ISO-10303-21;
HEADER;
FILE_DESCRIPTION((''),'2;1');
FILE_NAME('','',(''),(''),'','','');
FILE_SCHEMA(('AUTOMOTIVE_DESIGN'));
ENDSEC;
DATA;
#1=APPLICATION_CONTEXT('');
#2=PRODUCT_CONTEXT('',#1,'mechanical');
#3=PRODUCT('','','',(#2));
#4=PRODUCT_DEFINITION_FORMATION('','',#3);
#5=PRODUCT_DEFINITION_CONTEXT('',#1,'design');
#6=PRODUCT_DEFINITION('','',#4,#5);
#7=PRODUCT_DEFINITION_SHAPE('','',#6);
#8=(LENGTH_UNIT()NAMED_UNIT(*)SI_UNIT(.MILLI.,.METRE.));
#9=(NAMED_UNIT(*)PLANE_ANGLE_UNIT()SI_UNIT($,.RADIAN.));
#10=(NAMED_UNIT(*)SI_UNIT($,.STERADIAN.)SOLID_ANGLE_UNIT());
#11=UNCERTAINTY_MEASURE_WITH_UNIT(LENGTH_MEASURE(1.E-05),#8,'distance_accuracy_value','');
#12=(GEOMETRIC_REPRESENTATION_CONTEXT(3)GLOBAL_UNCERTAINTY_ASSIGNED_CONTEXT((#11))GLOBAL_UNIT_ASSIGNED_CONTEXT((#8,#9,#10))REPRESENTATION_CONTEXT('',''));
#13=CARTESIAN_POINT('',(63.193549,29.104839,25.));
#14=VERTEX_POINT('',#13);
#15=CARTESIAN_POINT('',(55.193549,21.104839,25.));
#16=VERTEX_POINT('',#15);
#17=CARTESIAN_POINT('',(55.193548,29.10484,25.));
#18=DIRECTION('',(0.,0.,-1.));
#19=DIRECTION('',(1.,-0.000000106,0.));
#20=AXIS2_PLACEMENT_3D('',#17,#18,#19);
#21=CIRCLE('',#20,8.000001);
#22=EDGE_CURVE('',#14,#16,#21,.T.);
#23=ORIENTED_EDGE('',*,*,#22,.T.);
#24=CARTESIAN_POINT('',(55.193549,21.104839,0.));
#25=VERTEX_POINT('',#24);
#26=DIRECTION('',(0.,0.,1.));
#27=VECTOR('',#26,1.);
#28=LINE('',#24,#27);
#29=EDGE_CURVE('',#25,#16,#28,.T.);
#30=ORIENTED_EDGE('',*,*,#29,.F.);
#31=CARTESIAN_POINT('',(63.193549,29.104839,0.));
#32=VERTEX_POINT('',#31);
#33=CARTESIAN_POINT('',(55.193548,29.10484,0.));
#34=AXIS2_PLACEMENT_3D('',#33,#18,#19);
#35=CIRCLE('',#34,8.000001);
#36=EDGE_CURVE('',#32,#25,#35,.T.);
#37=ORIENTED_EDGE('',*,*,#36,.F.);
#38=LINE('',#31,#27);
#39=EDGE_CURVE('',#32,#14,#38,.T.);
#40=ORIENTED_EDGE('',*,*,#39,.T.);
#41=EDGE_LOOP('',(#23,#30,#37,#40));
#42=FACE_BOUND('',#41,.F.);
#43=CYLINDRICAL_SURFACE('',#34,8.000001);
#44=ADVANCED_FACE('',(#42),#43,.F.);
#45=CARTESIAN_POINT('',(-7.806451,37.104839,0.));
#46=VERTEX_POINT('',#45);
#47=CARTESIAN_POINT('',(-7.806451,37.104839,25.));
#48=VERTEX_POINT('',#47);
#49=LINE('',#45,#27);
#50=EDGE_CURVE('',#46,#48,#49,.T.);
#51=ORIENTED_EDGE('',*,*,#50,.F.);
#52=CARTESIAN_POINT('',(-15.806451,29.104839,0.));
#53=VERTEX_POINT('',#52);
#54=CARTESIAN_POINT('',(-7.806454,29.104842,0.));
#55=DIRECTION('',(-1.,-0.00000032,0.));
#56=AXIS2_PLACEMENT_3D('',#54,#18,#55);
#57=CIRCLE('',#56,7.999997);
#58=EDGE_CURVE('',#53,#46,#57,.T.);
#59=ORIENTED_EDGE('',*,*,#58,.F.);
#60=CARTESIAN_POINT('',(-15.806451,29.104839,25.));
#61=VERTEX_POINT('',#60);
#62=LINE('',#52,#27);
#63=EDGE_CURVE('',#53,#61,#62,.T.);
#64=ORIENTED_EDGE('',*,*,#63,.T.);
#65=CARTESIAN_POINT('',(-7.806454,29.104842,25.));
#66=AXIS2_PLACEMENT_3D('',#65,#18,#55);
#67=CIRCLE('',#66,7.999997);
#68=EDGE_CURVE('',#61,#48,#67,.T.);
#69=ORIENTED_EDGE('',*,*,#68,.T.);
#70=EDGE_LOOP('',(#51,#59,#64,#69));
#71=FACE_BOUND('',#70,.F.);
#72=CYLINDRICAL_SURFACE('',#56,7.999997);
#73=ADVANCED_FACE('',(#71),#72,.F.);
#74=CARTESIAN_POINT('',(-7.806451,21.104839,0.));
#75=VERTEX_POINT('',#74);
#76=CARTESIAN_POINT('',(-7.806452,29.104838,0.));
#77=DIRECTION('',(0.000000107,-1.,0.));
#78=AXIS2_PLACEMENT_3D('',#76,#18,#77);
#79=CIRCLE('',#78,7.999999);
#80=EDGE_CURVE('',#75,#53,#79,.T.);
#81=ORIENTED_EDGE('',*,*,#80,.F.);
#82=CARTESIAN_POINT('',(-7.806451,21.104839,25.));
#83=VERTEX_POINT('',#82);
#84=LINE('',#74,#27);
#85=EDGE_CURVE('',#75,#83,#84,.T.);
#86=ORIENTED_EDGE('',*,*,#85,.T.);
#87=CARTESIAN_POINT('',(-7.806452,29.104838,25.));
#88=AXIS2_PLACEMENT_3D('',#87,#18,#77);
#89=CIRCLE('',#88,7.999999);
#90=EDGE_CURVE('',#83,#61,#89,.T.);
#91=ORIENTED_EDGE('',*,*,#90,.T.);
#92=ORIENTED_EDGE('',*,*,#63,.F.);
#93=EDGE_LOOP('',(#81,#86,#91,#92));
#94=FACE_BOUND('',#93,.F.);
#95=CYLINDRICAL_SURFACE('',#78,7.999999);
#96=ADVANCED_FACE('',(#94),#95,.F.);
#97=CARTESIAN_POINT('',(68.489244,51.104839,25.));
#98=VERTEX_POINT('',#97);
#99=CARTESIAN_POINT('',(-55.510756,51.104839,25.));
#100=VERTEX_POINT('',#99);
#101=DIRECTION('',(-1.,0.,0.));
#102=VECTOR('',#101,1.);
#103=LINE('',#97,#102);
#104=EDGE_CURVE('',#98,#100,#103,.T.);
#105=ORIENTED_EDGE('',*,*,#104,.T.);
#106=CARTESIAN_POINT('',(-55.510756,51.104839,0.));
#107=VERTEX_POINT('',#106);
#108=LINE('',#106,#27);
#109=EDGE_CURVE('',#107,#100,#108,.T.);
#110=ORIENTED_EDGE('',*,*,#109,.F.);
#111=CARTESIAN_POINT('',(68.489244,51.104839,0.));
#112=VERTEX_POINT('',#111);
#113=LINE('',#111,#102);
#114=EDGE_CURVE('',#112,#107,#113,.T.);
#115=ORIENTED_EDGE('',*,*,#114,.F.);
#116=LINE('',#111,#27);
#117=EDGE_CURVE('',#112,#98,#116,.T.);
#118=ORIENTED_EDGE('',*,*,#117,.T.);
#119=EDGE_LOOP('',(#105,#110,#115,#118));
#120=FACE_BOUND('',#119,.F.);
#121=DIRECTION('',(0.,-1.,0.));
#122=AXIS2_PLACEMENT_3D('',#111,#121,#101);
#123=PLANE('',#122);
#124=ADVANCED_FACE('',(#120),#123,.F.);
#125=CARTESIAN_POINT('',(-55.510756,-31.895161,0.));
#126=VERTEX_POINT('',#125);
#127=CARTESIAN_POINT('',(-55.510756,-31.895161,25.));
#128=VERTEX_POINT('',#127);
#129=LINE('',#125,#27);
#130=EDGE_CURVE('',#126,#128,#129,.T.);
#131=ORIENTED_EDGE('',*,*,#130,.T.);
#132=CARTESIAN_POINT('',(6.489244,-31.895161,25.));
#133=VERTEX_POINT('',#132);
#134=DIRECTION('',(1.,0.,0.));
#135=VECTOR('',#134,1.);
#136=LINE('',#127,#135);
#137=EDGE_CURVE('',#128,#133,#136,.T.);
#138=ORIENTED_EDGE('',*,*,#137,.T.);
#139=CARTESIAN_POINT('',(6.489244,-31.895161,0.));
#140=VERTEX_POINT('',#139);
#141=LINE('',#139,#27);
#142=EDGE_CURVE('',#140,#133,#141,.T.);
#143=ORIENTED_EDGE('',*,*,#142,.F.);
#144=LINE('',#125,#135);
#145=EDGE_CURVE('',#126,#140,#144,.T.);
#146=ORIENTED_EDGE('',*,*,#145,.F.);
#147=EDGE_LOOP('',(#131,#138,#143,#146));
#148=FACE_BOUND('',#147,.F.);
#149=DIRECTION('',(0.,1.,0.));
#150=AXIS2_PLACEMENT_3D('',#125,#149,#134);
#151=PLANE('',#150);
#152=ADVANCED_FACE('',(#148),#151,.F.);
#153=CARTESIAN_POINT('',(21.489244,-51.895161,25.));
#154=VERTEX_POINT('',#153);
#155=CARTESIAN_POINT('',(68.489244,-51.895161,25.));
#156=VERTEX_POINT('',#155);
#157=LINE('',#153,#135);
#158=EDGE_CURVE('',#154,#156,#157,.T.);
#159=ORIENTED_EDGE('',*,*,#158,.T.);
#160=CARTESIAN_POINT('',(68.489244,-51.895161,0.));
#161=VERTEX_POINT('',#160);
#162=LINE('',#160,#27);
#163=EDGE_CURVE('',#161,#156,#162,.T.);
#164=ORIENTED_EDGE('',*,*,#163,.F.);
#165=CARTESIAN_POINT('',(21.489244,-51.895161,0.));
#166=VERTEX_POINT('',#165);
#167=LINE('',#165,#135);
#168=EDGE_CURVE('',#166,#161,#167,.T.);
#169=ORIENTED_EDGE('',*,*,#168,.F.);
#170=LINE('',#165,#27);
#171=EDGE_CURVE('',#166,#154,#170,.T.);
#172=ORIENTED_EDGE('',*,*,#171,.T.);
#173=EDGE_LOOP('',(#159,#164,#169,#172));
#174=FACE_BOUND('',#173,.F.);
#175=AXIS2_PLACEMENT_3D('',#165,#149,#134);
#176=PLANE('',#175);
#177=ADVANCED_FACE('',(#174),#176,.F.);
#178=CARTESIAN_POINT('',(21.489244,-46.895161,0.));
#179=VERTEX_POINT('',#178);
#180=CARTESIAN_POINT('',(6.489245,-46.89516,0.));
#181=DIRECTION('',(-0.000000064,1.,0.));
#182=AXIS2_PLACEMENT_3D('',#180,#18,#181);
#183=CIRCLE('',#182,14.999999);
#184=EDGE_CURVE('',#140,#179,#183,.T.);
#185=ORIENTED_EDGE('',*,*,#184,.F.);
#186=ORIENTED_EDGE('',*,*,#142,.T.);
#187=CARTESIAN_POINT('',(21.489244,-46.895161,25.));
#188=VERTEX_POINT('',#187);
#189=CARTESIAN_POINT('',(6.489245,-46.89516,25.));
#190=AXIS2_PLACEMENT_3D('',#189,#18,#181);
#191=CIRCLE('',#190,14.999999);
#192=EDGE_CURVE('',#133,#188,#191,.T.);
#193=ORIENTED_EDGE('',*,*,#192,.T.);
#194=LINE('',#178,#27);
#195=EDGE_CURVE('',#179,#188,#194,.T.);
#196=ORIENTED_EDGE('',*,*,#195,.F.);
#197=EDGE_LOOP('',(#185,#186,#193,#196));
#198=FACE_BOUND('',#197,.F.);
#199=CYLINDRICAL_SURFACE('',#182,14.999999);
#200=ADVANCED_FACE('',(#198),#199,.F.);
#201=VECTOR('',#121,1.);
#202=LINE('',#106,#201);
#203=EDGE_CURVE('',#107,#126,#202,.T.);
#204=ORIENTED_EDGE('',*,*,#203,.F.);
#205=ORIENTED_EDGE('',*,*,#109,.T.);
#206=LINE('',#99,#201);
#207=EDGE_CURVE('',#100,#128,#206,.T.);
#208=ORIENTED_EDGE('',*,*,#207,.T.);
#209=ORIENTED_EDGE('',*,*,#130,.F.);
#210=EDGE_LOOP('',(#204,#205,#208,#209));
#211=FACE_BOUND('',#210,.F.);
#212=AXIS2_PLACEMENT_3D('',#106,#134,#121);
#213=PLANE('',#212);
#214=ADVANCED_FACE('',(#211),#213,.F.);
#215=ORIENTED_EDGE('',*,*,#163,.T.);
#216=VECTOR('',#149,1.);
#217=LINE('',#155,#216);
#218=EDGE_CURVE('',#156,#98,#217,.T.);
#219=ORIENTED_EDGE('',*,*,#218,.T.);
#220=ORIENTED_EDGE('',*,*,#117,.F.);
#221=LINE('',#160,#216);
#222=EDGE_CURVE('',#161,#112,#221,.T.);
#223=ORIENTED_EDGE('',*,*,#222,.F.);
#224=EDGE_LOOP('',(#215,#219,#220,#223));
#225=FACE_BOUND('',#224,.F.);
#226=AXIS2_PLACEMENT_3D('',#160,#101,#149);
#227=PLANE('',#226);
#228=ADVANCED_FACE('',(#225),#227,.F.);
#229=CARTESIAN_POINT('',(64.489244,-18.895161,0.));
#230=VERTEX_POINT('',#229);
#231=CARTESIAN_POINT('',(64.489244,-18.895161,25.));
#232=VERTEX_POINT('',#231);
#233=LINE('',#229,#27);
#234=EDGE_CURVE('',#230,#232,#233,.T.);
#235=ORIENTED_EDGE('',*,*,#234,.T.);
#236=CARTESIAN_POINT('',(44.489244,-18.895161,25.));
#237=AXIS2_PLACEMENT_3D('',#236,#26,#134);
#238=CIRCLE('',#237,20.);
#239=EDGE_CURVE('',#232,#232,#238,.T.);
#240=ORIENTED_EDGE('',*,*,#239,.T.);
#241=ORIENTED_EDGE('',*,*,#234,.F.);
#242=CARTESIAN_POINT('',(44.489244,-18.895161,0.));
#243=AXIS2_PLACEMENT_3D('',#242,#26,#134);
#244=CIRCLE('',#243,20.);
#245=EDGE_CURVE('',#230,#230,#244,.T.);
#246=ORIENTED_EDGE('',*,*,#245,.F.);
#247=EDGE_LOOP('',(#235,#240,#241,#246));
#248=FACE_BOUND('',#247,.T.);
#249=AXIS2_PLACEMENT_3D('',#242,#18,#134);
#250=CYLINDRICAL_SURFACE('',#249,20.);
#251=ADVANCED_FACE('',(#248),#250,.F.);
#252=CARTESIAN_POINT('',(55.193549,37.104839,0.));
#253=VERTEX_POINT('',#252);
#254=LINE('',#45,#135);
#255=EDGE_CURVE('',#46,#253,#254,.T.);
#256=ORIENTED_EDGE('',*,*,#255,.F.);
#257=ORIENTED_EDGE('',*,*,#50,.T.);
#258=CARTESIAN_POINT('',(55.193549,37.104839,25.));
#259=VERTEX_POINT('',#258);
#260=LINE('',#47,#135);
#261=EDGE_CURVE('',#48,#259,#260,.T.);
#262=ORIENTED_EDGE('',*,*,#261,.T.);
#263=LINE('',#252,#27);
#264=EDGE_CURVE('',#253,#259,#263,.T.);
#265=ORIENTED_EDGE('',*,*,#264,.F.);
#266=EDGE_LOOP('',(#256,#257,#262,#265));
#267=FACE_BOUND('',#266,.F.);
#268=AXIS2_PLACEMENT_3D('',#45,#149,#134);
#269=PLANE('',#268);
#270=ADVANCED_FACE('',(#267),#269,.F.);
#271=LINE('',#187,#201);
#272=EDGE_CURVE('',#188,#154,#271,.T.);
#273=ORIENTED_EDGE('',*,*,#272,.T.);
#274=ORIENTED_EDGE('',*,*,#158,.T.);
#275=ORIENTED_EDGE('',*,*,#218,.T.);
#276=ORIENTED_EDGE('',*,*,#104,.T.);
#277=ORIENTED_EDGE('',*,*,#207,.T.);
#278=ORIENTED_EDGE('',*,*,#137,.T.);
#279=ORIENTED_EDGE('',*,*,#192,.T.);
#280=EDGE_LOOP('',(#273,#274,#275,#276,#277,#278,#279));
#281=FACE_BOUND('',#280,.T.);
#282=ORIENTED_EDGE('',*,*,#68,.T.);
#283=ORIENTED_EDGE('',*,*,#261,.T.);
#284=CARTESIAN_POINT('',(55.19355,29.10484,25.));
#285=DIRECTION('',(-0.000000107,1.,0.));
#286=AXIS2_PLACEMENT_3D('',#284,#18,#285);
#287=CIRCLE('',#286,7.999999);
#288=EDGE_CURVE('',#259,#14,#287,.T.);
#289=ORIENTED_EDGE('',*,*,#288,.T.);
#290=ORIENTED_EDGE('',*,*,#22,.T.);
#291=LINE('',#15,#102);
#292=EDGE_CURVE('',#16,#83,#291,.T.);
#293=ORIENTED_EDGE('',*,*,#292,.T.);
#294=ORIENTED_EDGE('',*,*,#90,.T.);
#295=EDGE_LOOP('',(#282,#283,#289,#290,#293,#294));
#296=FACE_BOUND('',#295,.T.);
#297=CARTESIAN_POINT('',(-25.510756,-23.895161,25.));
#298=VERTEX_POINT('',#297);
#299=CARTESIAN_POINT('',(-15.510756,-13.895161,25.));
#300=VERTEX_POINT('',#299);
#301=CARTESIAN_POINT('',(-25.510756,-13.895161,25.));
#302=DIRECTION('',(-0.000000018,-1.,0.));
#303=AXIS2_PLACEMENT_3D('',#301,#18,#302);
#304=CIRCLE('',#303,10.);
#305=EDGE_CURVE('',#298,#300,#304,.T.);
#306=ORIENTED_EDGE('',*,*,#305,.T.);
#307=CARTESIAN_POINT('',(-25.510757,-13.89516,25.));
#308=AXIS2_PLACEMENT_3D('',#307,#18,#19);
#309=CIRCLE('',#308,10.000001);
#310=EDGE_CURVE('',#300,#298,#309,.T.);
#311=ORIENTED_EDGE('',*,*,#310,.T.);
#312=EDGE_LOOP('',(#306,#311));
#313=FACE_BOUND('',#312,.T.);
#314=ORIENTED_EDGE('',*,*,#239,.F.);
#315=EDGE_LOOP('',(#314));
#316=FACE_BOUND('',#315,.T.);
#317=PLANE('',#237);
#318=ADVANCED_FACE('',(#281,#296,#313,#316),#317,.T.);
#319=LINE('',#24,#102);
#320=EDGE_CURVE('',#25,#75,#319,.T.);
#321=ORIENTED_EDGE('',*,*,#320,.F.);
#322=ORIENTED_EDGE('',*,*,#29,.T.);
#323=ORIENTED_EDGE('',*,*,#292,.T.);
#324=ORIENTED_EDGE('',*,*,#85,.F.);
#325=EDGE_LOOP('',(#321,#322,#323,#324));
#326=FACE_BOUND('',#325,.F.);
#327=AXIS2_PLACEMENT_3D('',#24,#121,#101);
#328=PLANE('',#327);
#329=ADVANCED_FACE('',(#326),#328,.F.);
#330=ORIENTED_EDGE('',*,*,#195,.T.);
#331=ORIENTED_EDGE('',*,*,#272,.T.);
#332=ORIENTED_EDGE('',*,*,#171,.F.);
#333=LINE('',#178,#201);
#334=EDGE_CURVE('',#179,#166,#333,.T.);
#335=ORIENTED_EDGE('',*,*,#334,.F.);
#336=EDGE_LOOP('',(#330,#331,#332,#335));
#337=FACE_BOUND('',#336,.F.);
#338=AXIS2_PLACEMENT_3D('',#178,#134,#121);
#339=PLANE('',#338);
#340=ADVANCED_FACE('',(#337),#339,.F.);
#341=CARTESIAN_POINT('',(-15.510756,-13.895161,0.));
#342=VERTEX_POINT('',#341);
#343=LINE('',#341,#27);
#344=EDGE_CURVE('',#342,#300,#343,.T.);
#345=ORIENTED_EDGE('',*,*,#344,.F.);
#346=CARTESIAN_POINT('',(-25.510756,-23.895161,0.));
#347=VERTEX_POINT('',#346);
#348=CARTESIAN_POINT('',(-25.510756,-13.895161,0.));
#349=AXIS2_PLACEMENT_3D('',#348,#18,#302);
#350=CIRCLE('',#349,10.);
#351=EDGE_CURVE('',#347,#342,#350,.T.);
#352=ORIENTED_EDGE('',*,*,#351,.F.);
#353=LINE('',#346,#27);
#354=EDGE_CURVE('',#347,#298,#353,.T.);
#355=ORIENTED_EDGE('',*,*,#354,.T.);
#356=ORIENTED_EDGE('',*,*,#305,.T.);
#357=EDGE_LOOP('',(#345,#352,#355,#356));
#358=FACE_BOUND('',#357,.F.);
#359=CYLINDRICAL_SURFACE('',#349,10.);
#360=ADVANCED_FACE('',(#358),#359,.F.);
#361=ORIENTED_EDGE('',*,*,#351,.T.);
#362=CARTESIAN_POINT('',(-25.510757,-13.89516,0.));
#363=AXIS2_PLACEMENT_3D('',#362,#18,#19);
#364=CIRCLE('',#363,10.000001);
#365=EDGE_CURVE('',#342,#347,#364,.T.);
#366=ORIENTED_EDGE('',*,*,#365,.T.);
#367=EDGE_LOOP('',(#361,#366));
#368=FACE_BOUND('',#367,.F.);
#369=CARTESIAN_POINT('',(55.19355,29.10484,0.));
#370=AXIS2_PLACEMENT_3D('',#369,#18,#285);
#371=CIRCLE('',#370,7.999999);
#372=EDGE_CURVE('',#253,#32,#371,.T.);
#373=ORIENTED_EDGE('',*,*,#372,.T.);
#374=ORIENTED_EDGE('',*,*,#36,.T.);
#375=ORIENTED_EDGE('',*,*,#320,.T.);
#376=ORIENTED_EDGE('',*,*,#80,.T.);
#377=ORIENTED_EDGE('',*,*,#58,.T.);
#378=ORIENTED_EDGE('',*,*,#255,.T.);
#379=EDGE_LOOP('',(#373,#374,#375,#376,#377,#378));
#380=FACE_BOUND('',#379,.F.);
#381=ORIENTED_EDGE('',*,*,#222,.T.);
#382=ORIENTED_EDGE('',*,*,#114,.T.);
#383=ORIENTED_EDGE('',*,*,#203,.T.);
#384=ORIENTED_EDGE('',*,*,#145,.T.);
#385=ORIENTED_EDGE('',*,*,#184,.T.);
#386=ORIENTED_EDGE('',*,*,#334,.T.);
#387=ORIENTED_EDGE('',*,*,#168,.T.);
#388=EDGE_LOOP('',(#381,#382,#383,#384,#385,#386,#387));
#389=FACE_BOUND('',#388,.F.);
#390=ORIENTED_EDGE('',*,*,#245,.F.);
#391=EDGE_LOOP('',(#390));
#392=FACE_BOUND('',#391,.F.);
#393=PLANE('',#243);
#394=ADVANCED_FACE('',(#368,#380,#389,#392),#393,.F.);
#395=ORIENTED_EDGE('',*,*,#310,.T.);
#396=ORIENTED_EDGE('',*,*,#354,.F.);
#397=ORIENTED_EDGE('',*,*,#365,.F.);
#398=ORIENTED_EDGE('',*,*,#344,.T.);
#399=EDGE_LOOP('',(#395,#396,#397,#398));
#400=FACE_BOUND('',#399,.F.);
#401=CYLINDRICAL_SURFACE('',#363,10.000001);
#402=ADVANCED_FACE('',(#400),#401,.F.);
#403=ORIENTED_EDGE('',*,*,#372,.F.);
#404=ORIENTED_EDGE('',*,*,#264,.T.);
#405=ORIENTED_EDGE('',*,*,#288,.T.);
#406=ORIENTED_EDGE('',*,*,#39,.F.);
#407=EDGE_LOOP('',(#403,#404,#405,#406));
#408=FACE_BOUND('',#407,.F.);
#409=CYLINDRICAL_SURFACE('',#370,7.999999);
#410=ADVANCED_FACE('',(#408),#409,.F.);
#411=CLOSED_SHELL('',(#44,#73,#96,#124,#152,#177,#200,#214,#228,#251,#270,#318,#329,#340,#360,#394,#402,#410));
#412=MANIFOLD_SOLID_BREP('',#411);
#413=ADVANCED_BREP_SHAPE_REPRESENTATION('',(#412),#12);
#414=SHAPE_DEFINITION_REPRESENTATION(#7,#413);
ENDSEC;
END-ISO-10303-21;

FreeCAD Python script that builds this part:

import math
import FreeCAD as App
import Part
import Sketcher
from FreeCAD import Vector

doc = App.newDocument("Part")
params = doc.addObject("Spreadsheet::Sheet", "Params")
for row, (alias, value) in enumerate([
    ("sketch1_diameter", "40 mm"),
    ("sketch1_radius", "14.999999 mm"),
    ("sketch1_radius2", "10 mm"),
    ("sketch1_radius3", "7.999999 mm"),
    ("sketch1_width", "47 mm"),
    ("pad1_length", "25 mm"),
], start=1):
    params.set(f"A{row}", alias)
    params.set(f"B{row}", "=" + value)
    params.setAlias(f"B{row}", alias)

body = doc.addObject("PartDesign::Body", "Body")

# Sketch on XY plane
sketch1 = body.newObject("Sketcher::SketchObject", "Sketch")
sketch1.AttachmentSupport = (doc.getObject("XY_Plane"), [""])
sketch1.MapMode = "FlatFace"
sketch1.addGeometry(Part.LineSegment(Vector(21.489244, -51.895161, 0), Vector(68.489244, -51.895161, 0)), False)
sketch1.addGeometry(Part.LineSegment(Vector(68.489244, -51.895161, 0), Vector(68.489244, 51.104839, 0)), False)
sketch1.addGeometry(Part.LineSegment(Vector(68.489244, 51.104839, 0), Vector(-55.510756, 51.104839, 0)), False)
sketch1.addGeometry(Part.LineSegment(Vector(-55.510756, 51.104839, 0), Vector(-55.510756, -31.895161, 0)), False)
sketch1.addGeometry(Part.LineSegment(Vector(-55.510756, -31.895161, 0), Vector(6.489244, -31.895161, 0)), False)
sketch1.addGeometry(Part.ArcOfCircle(Part.Circle(Vector(6.489245, -46.89516, 0), Vector(0, 0, 1), 14.999999), math.radians(-0.000004), math.radians(90.000004)), False)
sketch1.addGeometry(Part.LineSegment(Vector(21.489244, -46.895161, 0), Vector(21.489244, -51.895161, 0)), False)
sketch1.addGeometry(Part.ArcOfCircle(Part.Circle(Vector(-25.510756, -13.895161, 0), Vector(0, 0, 1), 10), math.radians(0.000001), math.radians(269.999999)), False)
sketch1.addGeometry(Part.ArcOfCircle(Part.Circle(Vector(-25.510757, -13.89516, 0), Vector(0, 0, 1), 10.000001), math.radians(-89.999994), math.radians(-0.000006)), False)
sketch1.addGeometry(Part.Circle(Vector(44.489244, -18.895161, 0), Vector(0, 0, 1), 20), False)
sketch1.addGeometry(Part.ArcOfCircle(Part.Circle(Vector(55.19355, 29.10484, 0), Vector(0, 0, 1), 7.999999), math.radians(-0.000006), math.radians(90.000006)), False)
sketch1.addGeometry(Part.ArcOfCircle(Part.Circle(Vector(55.193548, 29.10484, 0), Vector(0, 0, 1), 8.000001), math.radians(-89.999994), math.radians(-0.000006)), False)
sketch1.addGeometry(Part.LineSegment(Vector(55.193549, 21.104839, 0), Vector(-7.806451, 21.104839, 0)), False)
sketch1.addGeometry(Part.ArcOfCircle(Part.Circle(Vector(-7.806452, 29.104838, 0), Vector(0, 0, 1), 7.999999), math.radians(179.999994), math.radians(270.000006)), False)
sketch1.addGeometry(Part.ArcOfCircle(Part.Circle(Vector(-7.806454, 29.104842, 0), Vector(0, 0, 1), 7.999997), math.radians(89.999982), math.radians(180.000018)), False)
sketch1.addGeometry(Part.LineSegment(Vector(-7.806451, 37.104839, 0), Vector(55.193549, 37.104839, 0)), False)
sketch1.addConstraint(Sketcher.Constraint("Coincident", 0, 2, 1, 1))
sketch1.addConstraint(Sketcher.Constraint("Coincident", 1, 2, 2, 1))
sketch1.addConstraint(Sketcher.Constraint("Coincident", 2, 2, 3, 1))
sketch1.addConstraint(Sketcher.Constraint("Coincident", 3, 2, 4, 1))
sketch1.addConstraint(Sketcher.Constraint("Tangent", 4, 2, 5, 2))
sketch1.addConstraint(Sketcher.Constraint("Tangent", 5, 1, 6, 1))
sketch1.addConstraint(Sketcher.Constraint("Coincident", 6, 2, 0, 1))
sketch1.addConstraint(Sketcher.Constraint("Tangent", 7, 1, 8, 2))
sketch1.addConstraint(Sketcher.Constraint("Coincident", 8, 1, 7, 2))
sketch1.addConstraint(Sketcher.Constraint("Tangent", 10, 1, 11, 2))
sketch1.addConstraint(Sketcher.Constraint("Tangent", 11, 1, 12, 1))
sketch1.addConstraint(Sketcher.Constraint("Tangent", 12, 2, 13, 2))
sketch1.addConstraint(Sketcher.Constraint("Tangent", 13, 1, 14, 2))
sketch1.addConstraint(Sketcher.Constraint("Tangent", 14, 1, 15, 1))
sketch1.addConstraint(Sketcher.Constraint("Tangent", 15, 2, 10, 2))
sketch1.addConstraint(Sketcher.Constraint("Horizontal", 0))
sketch1.addConstraint(Sketcher.Constraint("Vertical", 1))
sketch1.addConstraint(Sketcher.Constraint("Horizontal", 2))
sketch1.addConstraint(Sketcher.Constraint("Vertical", 3))
sketch1.addConstraint(Sketcher.Constraint("Horizontal", 4))
sketch1.addConstraint(Sketcher.Constraint("Vertical", 6))
sketch1.addConstraint(Sketcher.Constraint("Horizontal", 12))
sketch1.addConstraint(Sketcher.Constraint("Horizontal", 15))
sketch1.addConstraint(Sketcher.Constraint("Equal", 10, 11))
sketch1.addConstraint(Sketcher.Constraint("Equal", 11, 13))
sketch1.addConstraint(Sketcher.Constraint("Horizontal", 8, 3, 7, 1))
sketch1.addConstraint(Sketcher.Constraint("Horizontal", 13, 3, 10, 1))
sketch1.addConstraint(Sketcher.Constraint("Horizontal", 10, 1, 13, 1))
sketch1.addConstraint(Sketcher.Constraint("Vertical", 7, 3, 8, 1))
sketch1.addConstraint(Sketcher.Constraint("Diameter", 9, 40.0))
sketch1.addConstraint(Sketcher.Constraint("Radius", 5, 14.999999))
sketch1.addConstraint(Sketcher.Constraint("Radius", 7, 10.0))
sketch1.addConstraint(Sketcher.Constraint("Radius", 10, 7.999999))
sketch1.addConstraint(Sketcher.Constraint("DistanceX", 0, 1, 0, 2, 47.0))
sketch1.addConstraint(Sketcher.Constraint("DistanceX", 2, 2, 2, 1, 124.0))
sketch1.addConstraint(Sketcher.Constraint("DistanceX", 12, 2, 12, 1, 63.0))
sketch1.addConstraint(Sketcher.Constraint("DistanceY", 1, 1, 1, 2, 103.0))
sketch1.addConstraint(Sketcher.Constraint("DistanceY", 3, 2, 3, 1, 83.0))
sketch1.addConstraint(Sketcher.Constraint("DistanceX", 7, 3, 5, 3, 32.000001))
sketch1.addConstraint(Sketcher.Constraint("DistanceY", 5, 3, 7, 3, 32.999999))
sketch1.addConstraint(Sketcher.Constraint("DistanceX", 5, 3, 9, 3, 37.999999))
sketch1.addConstraint(Sketcher.Constraint("DistanceY", 5, 3, 9, 3, 27.999999))
sketch1.addConstraint(Sketcher.Constraint("DistanceY", 9, 3, 10, 3, 48.000001))
sketch1.addConstraint(Sketcher.Constraint("DistanceY", 5, 3, -1, 1, 46.89516))
sketch1.addConstraint(Sketcher.Constraint("DistanceX", -1, 1, 10, 3, 55.19355))
sketch1.addConstraint(Sketcher.Constraint("DistanceX", -1, 1, 5, 3, 6.489245))
sketch1.setExpression("Constraints[29]", "Params.sketch1_diameter")
sketch1.setExpression("Constraints[30]", "Params.sketch1_radius")
sketch1.setExpression("Constraints[31]", "Params.sketch1_radius2")
sketch1.setExpression("Constraints[32]", "Params.sketch1_radius3")
sketch1.setExpression("Constraints[33]", "Params.sketch1_width")
pad1 = body.newObject("PartDesign::Pad", "Pad")
pad1.Profile = sketch1
pad1.setExpression("Length", "Params.pad1_length")

doc.recompute()
